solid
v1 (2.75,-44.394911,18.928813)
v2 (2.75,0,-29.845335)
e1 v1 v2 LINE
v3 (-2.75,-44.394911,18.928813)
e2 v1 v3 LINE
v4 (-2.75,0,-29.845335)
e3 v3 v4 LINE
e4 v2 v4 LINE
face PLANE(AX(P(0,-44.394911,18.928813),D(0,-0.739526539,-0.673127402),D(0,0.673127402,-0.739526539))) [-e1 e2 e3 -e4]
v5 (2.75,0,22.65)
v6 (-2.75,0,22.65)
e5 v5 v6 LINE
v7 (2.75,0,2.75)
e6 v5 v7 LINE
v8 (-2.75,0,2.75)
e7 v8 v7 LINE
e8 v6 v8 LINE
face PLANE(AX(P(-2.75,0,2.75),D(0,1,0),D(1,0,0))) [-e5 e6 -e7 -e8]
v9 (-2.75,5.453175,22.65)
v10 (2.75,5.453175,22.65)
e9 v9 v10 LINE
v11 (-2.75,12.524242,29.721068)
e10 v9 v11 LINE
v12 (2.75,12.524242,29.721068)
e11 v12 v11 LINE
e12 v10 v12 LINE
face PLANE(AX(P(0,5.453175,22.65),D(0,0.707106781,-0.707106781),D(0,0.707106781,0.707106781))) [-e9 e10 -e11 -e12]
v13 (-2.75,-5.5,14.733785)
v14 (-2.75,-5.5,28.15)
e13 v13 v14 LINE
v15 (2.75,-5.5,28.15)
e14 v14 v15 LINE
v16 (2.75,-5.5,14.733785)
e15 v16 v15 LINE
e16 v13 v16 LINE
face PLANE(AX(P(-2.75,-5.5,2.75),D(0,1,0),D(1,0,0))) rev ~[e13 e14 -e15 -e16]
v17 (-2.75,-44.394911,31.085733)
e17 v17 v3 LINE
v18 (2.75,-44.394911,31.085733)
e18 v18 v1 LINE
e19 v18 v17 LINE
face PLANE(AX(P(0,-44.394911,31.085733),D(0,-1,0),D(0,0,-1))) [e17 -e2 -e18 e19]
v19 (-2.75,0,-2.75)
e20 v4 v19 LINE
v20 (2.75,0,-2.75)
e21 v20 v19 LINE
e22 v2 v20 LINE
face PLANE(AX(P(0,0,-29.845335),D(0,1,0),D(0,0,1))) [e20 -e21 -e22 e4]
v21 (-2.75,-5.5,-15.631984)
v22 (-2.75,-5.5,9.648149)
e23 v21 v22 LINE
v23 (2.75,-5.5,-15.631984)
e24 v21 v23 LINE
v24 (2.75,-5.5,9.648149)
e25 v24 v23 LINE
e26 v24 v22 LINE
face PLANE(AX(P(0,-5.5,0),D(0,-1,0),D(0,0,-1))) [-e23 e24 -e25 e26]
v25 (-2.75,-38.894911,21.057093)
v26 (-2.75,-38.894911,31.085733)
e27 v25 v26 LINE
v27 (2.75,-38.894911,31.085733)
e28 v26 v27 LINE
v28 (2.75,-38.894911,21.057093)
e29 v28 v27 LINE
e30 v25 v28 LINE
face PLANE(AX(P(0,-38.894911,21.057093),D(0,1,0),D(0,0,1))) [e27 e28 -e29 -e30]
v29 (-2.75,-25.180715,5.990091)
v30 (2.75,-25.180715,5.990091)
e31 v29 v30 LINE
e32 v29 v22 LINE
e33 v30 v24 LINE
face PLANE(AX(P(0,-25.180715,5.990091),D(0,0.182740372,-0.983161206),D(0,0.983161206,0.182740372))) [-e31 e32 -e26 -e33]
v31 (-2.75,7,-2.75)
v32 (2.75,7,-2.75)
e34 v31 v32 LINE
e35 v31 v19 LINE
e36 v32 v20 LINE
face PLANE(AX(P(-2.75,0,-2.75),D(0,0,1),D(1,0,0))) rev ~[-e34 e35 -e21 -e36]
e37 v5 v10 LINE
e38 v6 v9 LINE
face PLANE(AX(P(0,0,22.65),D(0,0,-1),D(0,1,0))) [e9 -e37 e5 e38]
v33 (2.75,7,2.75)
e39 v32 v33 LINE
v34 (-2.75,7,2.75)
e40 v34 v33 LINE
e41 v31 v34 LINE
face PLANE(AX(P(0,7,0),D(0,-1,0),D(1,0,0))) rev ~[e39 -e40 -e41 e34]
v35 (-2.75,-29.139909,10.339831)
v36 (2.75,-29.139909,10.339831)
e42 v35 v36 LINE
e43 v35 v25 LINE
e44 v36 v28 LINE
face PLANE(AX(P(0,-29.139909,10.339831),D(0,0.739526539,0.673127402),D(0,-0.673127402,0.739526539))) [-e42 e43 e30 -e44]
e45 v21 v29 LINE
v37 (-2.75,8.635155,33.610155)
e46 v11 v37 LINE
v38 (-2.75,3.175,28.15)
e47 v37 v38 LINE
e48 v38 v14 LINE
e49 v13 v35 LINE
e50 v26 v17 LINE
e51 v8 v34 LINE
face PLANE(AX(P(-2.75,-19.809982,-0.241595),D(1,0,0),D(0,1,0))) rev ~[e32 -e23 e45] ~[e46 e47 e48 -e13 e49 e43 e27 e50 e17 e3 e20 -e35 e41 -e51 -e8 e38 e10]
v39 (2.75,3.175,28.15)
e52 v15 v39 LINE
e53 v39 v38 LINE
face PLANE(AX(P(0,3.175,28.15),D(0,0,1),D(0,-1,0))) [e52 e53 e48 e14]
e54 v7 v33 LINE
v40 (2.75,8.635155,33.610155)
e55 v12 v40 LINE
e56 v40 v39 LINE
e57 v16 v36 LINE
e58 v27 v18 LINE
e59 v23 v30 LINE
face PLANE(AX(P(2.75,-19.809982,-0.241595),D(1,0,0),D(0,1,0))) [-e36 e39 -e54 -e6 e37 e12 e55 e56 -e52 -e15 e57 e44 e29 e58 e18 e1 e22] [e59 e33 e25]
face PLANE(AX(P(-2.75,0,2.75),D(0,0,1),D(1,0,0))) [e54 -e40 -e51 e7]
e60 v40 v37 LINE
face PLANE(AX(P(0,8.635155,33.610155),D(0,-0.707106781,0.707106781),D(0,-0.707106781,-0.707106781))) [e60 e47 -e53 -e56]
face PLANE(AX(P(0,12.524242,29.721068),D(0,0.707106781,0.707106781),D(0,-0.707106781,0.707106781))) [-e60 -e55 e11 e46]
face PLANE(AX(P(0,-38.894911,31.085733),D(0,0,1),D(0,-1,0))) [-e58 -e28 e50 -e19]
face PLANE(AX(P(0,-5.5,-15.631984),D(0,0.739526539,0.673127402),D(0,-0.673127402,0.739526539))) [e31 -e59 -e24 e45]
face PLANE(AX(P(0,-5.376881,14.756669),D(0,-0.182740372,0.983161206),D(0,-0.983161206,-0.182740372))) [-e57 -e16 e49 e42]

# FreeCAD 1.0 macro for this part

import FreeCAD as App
import Part
import Sketcher
from FreeCAD import Vector
Q = App.Units.Quantity


def add_polygon(sketch, points):
    """Adds a closed chain of lines whose ends are joined by coincident constraints."""
    first, n = sketch.GeometryCount, len(points)
    for a, b in zip(points, points[1:] + points[:1]):
        sketch.addGeometry(Part.LineSegment(App.Vector(*a, 0), App.Vector(*b, 0)), False)
    for i in range(n):
        sketch.addConstraint(Sketcher.Constraint("Coincident", first + i, 2, first + (i + 1) % n, 1))

doc = App.newDocument("Part")
body = doc.addObject("PartDesign::Body", "Body")

sketch1 = body.newObject("Sketcher::SketchObject", "Sketch")
sketch1.AttachmentSupport = (doc.getObject("XZ_Plane"), [""])
sketch1.MapMode = "FlatFace"
add_polygon(sketch1, [(-2.75, 2.75), (-2.75, -2.75), (2.75, -2.75), (2.75, 2.75)])
sketch1.addConstraint([
    Sketcher.Constraint("Vertical", 0),
    Sketcher.Constraint("Horizontal", 1),
    Sketcher.Constraint("Vertical", 2),
    Sketcher.Constraint("Horizontal", 3),
    Sketcher.Constraint("Symmetric", 0, 2, 2, 2, -1, 1),
    Sketcher.Constraint("Equal", 3, 0),
    Sketcher.Constraint("DistanceX", 1, 1, 1, 2, Q("5.5 mm")),
])
pad1 = body.newObject("PartDesign::Pad", "Pad")
pad1.Profile = sketch1
pad1.Type = "TwoLengths"
pad1.Length = 7
pad1.Length2 = 5.5
pad1.Reversed = True
body2 = doc.addObject("PartDesign::Body", "Body001")

sketch2 = body2.newObject("Sketcher::SketchObject", "Sketch001")
sketch2.AttachmentSupport = (doc.getObject("XZ_Plane001"), [""])
sketch2.MapMode = "FlatFace"
add_polygon(sketch2, [(-2.75, 28.15), (-2.75, 22.65), (2.75, 22.65), (2.75, 28.15)])
sketch2.addConstraint([
    Sketcher.Constraint("Vertical", 0),
    Sketcher.Constraint("Horizontal", 1),
    Sketcher.Constraint("Vertical", 2),
    Sketcher.Constraint("Horizontal", 3),
    Sketcher.Constraint("Equal", 3, 0),
    Sketcher.Constraint("DistanceX", 1, 1, 1, 2, Q("5.5 mm")),
    Sketcher.Constraint("DistanceX", 0, 2, -1, 1, Q("2.75 mm")),
    Sketcher.Constraint("DistanceY", -1, 1, 0, 2, Q("22.65 mm")),
])
pad2 = body2.newObject("PartDesign::Pad", "Pad001")
pad2.Profile = sketch2
pad2.Length = 5.5
body.AllowCompound = True
doc.recompute()

boolean = body.newObject("PartDesign::Boolean", "Boolean")
boolean.Type = "Fuse"
boolean.addObjects([body2])

sketch3 = body.newObject("Sketcher::SketchObject", "Sketch002")
sketch3.AttachmentSupport = (doc.getObject("XY_Plane"), [""])
sketch3.MapMode = "FlatFace"
sketch3.AttachmentOffset = App.Placement(Vector(0, 0, 2.75), App.Rotation())
add_polygon(sketch3, [(-2.75, 0), (-2.75, -5.5), (2.75, -5.5), (2.75, 0)])
sketch3.addConstraint([
    Sketcher.Constraint("Vertical", 0),
    Sketcher.Constraint("Horizontal", 1),
    Sketcher.Constraint("Vertical", 2),
    Sketcher.Constraint("Horizontal", 3),
    Sketcher.Constraint("Symmetric", 2, 2, 3, 2, -1, 1),
    Sketcher.Constraint("Equal", 3, 0),
    Sketcher.Constraint("DistanceX", 1, 1, 1, 2, Q("5.5 mm")),
])
pad3 = body.newObject("PartDesign::Pad", "Pad002")
pad3.Profile = sketch3
pad3.Type = "UpToLast"

sketch4 = body.newObject("Sketcher::SketchObject", "Sketch003")
sketch4.AttachmentSupport = (doc.getObject("YZ_Plane"), [""])
sketch4.MapMode = "FlatFace"
add_polygon(sketch4, [(3.175, 28.15), (0, 28.15), (0, 22.65), (5.453175, 22.65), (12.524242, 29.721068), (8.635155, 33.610155)])
sketch4.addConstraint([
    Sketcher.Constraint("Horizontal", 0),
    Sketcher.Constraint("Vertical", 1),
    Sketcher.Constraint("Horizontal", 2),
    Sketcher.Constraint("PointOnObject", 0, 2, -2),
    Sketcher.Constraint("Perpendicular", 3, 4),
    Sketcher.Constraint("Perpendicular", 4, 5),
    Sketcher.Constraint("Angle", 3, Q("45 deg")),
    Sketcher.Constraint("Distance", 3, Q("10 mm")),
    Sketcher.Constraint("DistanceY", 1, 2, 1, 1, Q("5.5 mm")),
    Sketcher.Constraint("Distance", 4, Q("5.5 mm")),
    Sketcher.Constraint("DistanceX", 0, 2, 0, 1, Q("3.175 mm")),
    Sketcher.Constraint("DistanceY", -1, 1, 0, 2, Q("28.15 mm")),
])
pad4 = body.newObject("PartDesign::Pad", "Pad003")
pad4.Profile = sketch4
pad4.Type = "TwoLengths"
pad4.Length = 2.75
pad4.Length2 = 2.75

sketch5 = body.newObject("Sketcher::SketchObject", "Sketch004")
sketch5.AttachmentSupport = (doc.getObject("YZ_Plane"), [""])
sketch5.MapMode = "FlatFace"
add_polygon(sketch5, [(0, -29.845335), (0, 0), (-5.5, 0), (-5.5, -15.631984), (-25.180715, 5.990091), (-4.46318, 9.840863), (-5.376881, 14.756669), (-29.139909, 10.339831), (-38.894911, 21.057093), (-38.894911, 31.085733), (-44.394911, 31.085733), (-44.394911, 18.928813)])
sketch5.addConstraint([
    Sketcher.Constraint("Vertical", 0),
    Sketcher.Constraint("Horizontal", 1),
    Sketcher.Constraint("Vertical", 2),
    Sketcher.Constraint("Vertical", 8),
    Sketcher.Constraint("Horizontal", 9),
    Sketcher.Constraint("Vertical", 10),
    Sketcher.Constraint("Coincident", 0, 2, -1, 1),
    Sketcher.Constraint("Perpendicular", 4, 5),
    Sketcher.Constraint("Perpendicular", 5, 6),
    Sketcher.Constraint("Parallel", 3, 7),
    Sketcher.Constraint("Parallel", 7, 11),
    Sketcher.Constraint("Equal", 1, 9),
    Sketcher.Constraint("Distance", 5, Q("5 mm")),
    Sketcher.Constraint("DistanceX", 1, 2, 1, 1, Q("5.5 mm")),
    Sketcher.Constraint("DistanceY", 8, 1, 8, 2, Q("10.02864 mm")),
    Sketcher.Constraint("DistanceY", 10, 2, 10, 1, Q("12.156921 mm")),
    Sketcher.Constraint("DistanceX", 5, 2, 4, 2, Q("0.913702 mm")),
    Sketcher.Constraint("Distance", 4, Q("21.072368 mm")),
    Sketcher.Constraint("Distance", 6, Q("24.170021 mm")),
    Sketcher.Constraint("Distance", 7, Q("14.49206 mm")),
    Sketcher.Constraint("DistanceY", 0, 1, 0, 2, Q("29.845335 mm")),
    Sketcher.Constraint("DistanceY", 2, 2, 2, 1, Q("15.631984 mm")),
    Sketcher.Constraint("DistanceY", -1, 1, 3, 2, Q("5.990091 mm")),
])
pad5 = body.newObject("PartDesign::Pad", "Pad004")
pad5.Profile = sketch5
pad5.Length = 5.5
pad5.Midplane = True

doc.recompute()
